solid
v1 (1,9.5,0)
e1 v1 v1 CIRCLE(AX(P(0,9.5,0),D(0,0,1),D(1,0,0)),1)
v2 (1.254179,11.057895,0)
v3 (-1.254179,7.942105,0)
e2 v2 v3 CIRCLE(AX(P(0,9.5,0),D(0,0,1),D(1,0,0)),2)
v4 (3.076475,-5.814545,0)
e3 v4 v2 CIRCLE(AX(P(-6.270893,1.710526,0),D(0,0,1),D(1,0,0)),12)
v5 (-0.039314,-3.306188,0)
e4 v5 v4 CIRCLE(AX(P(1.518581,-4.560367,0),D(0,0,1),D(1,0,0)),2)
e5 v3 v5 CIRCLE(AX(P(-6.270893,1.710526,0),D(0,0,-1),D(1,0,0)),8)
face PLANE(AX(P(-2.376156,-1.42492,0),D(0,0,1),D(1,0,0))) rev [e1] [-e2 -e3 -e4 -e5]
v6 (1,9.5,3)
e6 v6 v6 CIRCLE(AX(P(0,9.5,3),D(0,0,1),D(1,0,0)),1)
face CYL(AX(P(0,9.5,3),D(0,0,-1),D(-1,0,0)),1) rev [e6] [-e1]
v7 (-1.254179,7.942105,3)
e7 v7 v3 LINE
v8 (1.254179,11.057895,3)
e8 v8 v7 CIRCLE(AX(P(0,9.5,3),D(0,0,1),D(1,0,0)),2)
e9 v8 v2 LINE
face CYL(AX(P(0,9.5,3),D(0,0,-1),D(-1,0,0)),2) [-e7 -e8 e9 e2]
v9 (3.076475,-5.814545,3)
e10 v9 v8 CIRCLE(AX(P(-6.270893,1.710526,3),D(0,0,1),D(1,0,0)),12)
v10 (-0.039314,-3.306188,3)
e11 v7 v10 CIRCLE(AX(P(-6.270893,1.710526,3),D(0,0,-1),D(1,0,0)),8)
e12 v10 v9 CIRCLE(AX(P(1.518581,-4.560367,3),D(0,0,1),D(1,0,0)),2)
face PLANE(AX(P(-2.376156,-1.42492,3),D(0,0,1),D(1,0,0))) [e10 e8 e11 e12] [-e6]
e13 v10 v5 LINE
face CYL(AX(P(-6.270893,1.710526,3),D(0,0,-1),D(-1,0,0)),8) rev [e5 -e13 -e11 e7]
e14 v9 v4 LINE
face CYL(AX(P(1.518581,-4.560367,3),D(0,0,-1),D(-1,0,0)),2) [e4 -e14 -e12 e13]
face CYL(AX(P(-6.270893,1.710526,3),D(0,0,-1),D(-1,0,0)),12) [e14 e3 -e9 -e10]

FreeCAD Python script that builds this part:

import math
import FreeCAD as App
import Part
import Sketcher
from FreeCAD import Vector

doc = App.newDocument("Part")
body = doc.addObject("PartDesign::Body", "Body")

sketch1 = doc.addObject("Sketcher::SketchObject", "Sketch")
body.addObject(sketch1)
sketch1.AttachmentSupport = (doc.XY_Plane, [""])
sketch1.MapMode = "FlatFace"
sketch1.addGeometry(Part.ArcOfCircle(Part.Circle(Vector(-6.3, 1.7, 0), Vector(0, 0, 1), 12), math.radians(-39), math.radians(51)), False)
sketch1.addGeometry(Part.ArcOfCircle(Part.Circle(Vector(0, 9.5, 0), Vector(0, 0, 1), 2), math.radians(51), math.radians(231)), False)
sketch1.addGeometry(Part.ArcOfCircle(Part.Circle(Vector(-6.3, 1.7, 0), Vector(0, 0, 1), 8), math.radians(-39), math.radians(51)), False)
sketch1.addGeometry(Part.ArcOfCircle(Part.Circle(Vector(1.5, -4.6, 0), Vector(0, 0, 1), 2), math.radians(141), math.radians(321)), False)
sketch1.addGeometry(Part.Circle(Vector(0, 9.5, 0), Vector(0, 0, 1), 1), False)
sketch1.addConstraint(Sketcher.Constraint("Tangent", 0, 2, 1, 1))
sketch1.addConstraint(Sketcher.Constraint("Tangent", 1, 2, 2, 2))
sketch1.addConstraint(Sketcher.Constraint("Tangent", 2, 1, 3, 1))
sketch1.addConstraint(Sketcher.Constraint("Tangent", 3, 2, 0, 1))
sketch1.addConstraint(Sketcher.Constraint("Coincident", 2, 3, 0, 3))
sketch1.addConstraint(Sketcher.Constraint("Coincident", 4, 3, 1, 3))
sketch1.addConstraint(Sketcher.Constraint("PointOnObject", 1, 3, -2))
sketch1.addConstraint(Sketcher.Constraint("Diameter", 4, 2.0))
sketch1.addConstraint(Sketcher.Constraint("Radius", 0, 12.0))
sketch1.addConstraint(Sketcher.Constraint("Radius", 1, 2.0))
sketch1.addConstraint(Sketcher.Constraint("DistanceY", -1, 1, 1, 3, 9.5))
sketch1.addConstraint(Sketcher.Constraint("DistanceX", -1, 1, 3, 3, 1.518581))
sketch1.addConstraint(Sketcher.Constraint("DistanceX", -1, 1, 0, 2, 1.254179))
pad1 = doc.addObject("PartDesign::Pad", "Pad")
body.addObject(pad1)
pad1.Profile = sketch1
pad1.Length = 3

doc.recompute()
